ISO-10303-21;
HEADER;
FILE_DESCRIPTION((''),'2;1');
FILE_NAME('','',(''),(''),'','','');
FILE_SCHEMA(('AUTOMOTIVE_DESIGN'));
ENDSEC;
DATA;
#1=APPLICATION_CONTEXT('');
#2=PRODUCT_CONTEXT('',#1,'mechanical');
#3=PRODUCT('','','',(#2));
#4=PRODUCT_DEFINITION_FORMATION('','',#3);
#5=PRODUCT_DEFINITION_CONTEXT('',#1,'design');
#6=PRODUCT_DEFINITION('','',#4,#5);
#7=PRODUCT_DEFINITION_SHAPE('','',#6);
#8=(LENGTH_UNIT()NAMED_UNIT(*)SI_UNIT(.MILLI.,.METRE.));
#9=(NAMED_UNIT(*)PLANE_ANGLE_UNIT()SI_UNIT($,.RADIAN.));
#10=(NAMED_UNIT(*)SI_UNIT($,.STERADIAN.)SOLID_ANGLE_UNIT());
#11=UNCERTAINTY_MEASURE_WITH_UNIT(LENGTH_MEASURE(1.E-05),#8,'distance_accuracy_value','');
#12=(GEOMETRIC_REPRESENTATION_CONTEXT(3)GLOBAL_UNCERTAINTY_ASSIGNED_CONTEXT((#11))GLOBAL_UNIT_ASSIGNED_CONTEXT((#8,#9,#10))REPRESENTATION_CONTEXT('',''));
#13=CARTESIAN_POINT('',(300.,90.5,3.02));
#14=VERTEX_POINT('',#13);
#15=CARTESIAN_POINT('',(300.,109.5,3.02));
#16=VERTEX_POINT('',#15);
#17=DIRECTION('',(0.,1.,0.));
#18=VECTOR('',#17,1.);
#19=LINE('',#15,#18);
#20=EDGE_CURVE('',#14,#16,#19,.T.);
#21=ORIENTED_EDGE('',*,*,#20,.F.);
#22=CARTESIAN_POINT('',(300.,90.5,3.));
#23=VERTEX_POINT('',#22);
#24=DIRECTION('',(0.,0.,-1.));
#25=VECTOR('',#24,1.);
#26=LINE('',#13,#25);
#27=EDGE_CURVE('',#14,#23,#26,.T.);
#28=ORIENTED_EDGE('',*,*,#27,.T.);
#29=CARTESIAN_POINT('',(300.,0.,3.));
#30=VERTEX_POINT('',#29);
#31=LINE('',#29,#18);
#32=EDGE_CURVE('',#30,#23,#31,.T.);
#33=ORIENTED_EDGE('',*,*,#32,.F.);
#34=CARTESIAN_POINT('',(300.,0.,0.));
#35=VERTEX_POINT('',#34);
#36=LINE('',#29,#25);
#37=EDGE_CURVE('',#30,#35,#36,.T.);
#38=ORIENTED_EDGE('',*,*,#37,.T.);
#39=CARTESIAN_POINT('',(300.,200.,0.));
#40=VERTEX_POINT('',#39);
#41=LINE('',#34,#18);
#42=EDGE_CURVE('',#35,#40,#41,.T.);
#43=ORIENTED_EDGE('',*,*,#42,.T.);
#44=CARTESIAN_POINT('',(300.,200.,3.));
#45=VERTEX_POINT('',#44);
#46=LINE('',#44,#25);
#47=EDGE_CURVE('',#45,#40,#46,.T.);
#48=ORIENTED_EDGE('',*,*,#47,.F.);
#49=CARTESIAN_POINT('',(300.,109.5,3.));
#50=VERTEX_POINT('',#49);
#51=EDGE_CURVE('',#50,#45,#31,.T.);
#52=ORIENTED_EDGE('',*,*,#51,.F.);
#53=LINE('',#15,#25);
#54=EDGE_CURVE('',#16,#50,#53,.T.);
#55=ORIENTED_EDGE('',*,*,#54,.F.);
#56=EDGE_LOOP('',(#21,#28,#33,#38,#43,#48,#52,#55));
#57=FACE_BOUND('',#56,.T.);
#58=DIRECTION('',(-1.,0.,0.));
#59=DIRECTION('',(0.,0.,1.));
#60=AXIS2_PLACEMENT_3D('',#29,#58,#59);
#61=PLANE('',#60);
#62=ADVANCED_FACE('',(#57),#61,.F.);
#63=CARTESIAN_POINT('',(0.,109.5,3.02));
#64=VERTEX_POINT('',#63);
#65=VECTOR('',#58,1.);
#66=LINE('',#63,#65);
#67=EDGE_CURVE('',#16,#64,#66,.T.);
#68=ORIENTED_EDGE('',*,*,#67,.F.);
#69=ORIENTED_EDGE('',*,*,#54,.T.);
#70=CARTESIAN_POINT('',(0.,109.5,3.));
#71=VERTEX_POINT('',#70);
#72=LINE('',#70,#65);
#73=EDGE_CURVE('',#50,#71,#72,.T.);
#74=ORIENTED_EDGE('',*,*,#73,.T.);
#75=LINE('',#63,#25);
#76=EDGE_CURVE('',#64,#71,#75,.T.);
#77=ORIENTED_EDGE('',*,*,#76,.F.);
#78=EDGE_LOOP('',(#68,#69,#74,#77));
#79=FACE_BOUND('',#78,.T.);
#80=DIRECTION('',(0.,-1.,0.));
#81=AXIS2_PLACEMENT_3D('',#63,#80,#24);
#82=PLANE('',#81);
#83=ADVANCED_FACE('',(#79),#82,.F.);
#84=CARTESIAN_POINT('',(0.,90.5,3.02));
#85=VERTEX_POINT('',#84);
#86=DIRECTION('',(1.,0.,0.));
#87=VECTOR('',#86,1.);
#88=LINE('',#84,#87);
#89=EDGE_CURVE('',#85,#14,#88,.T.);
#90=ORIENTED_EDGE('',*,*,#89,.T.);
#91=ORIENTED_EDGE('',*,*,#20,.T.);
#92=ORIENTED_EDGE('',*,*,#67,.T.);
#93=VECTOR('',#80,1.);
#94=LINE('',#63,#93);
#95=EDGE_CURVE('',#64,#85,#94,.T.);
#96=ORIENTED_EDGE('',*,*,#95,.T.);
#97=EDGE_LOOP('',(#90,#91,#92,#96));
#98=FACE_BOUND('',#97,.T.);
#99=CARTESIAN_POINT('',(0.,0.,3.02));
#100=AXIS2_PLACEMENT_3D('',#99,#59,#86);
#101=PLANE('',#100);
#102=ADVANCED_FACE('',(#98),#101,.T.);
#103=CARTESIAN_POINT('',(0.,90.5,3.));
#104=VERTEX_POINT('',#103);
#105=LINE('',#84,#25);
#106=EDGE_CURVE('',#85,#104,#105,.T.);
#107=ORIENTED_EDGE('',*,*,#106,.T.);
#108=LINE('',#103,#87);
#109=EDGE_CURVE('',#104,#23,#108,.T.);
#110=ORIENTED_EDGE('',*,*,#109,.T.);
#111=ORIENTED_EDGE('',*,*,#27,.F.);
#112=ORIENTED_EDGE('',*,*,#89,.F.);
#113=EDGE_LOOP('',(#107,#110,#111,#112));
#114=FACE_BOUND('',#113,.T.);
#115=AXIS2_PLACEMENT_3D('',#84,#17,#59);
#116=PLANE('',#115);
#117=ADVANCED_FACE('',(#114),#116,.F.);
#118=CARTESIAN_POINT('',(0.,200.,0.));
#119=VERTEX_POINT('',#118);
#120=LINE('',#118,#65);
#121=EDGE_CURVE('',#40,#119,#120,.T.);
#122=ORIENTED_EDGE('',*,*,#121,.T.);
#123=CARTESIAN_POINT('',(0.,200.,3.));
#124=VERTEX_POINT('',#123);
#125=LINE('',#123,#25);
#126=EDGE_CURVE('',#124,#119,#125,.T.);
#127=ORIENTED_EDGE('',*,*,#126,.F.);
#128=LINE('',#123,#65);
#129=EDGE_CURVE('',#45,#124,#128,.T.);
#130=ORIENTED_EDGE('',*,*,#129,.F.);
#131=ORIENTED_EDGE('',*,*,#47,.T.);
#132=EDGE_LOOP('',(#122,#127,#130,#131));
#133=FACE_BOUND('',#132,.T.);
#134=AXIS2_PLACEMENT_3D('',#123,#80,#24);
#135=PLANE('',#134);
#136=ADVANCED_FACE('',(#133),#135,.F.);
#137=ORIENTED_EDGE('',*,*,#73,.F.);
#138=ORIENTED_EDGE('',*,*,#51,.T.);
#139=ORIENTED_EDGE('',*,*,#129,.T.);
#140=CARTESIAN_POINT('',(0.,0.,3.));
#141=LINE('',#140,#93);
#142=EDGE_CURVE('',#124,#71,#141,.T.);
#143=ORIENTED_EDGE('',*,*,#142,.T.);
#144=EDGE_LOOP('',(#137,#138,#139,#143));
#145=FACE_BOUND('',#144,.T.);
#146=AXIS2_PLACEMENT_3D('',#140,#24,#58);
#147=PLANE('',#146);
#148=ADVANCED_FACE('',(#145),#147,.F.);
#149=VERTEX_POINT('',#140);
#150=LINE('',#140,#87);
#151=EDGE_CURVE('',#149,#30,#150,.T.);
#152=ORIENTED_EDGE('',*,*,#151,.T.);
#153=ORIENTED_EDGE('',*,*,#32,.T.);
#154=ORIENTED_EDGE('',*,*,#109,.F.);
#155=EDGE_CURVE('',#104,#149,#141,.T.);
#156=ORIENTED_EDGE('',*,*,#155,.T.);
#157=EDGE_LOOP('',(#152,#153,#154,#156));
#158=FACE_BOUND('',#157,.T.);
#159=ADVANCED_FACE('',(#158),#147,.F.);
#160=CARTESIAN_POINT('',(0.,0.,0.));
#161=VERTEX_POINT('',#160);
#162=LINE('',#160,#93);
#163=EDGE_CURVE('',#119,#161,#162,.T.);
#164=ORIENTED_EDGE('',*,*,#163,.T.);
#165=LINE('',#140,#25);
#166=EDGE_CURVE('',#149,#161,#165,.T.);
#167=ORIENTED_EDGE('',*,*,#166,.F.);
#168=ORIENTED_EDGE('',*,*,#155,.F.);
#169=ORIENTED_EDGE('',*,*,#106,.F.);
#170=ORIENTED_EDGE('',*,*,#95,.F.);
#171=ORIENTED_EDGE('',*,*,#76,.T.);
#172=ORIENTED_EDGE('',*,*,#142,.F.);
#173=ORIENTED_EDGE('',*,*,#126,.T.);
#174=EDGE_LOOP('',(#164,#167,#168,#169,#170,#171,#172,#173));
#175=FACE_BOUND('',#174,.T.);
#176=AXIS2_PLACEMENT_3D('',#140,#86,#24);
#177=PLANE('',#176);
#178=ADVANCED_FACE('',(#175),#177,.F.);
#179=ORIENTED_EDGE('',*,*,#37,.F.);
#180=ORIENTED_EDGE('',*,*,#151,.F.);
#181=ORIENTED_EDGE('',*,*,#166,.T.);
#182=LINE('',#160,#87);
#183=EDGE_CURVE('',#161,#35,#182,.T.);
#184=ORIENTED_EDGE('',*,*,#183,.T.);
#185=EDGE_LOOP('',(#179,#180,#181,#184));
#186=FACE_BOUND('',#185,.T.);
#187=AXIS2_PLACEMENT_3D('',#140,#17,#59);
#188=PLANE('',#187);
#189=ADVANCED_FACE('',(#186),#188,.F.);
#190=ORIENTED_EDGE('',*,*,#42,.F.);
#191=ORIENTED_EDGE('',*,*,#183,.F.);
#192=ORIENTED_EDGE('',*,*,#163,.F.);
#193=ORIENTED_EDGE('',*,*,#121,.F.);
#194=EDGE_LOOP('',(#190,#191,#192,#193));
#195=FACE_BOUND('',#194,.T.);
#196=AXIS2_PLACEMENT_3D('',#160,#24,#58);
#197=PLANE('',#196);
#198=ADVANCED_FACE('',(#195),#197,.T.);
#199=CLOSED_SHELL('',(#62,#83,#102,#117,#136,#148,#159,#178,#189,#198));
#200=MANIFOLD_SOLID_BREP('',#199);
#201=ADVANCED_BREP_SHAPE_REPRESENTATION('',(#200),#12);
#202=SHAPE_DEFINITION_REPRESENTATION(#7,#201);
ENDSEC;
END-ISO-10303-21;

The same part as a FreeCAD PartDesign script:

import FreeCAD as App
import Part
import Sketcher
from FreeCAD import Vector

doc = App.newDocument("Part")
body = doc.addObject("PartDesign::Body", "Body")

# Sketch on XY plane
sketch1 = doc.addObject("Sketcher::SketchObject", "Sketch")
body.addObject(sketch1)
sketch1.AttachmentSupport = (doc.XY_Plane, [""])
sketch1.MapMode = "FlatFace"
sketch1.addGeometry(Part.LineSegment(Vector(0, 200, 0), Vector(0, 0, 0)), False)
sketch1.addGeometry(Part.LineSegment(Vector(0, 0, 0), Vector(300, 0, 0)), False)
sketch1.addGeometry(Part.LineSegment(Vector(300, 0, 0), Vector(300, 200, 0)), False)
sketch1.addGeometry(Part.LineSegment(Vector(300, 200, 0), Vector(0, 200, 0)), False)
sketch1.addConstraint(Sketcher.Constraint("Coincident", 0, 2, 1, 1))
sketch1.addConstraint(Sketcher.Constraint("Coincident", 1, 2, 2, 1))
sketch1.addConstraint(Sketcher.Constraint("Coincident", 2, 2, 3, 1))
sketch1.addConstraint(Sketcher.Constraint("Coincident", 3, 2, 0, 1))
sketch1.addConstraint(Sketcher.Constraint("Vertical", 0))
sketch1.addConstraint(Sketcher.Constraint("Horizontal", 1))
sketch1.addConstraint(Sketcher.Constraint("Vertical", 2))
sketch1.addConstraint(Sketcher.Constraint("Horizontal", 3))
sketch1.addConstraint(Sketcher.Constraint("Coincident", 0, 2, -1, 1))
sketch1.addConstraint(Sketcher.Constraint("DistanceX", 1, 1, 1, 2, 300.0))
sketch1.addConstraint(Sketcher.Constraint("DistanceY", 0, 2, 0, 1, 200.0))
pad1 = doc.addObject("PartDesign::Pad", "Pad")
body.addObject(pad1)
pad1.Profile = sketch1
pad1.Length = 3

# Sketch on XY plane
sketch2 = doc.addObject("Sketcher::SketchObject", "Sketch001")
body.addObject(sketch2)
sketch2.AttachmentSupport = (doc.XY_Plane, [""])
sketch2.MapMode = "FlatFace"
sketch2.AttachmentOffset = App.Placement(Vector(0, 0, 3), App.Rotation())
sketch2.addGeometry(Part.LineSegment(Vector(0, 110, 0), Vector(0, 90, 0)), False)
sketch2.addGeometry(Part.LineSegment(Vector(0, 90, 0), Vector(300, 90, 0)), False)
sketch2.addGeometry(Part.LineSegment(Vector(300, 90, 0), Vector(300, 110, 0)), False)
sketch2.addGeometry(Part.LineSegment(Vector(300, 110, 0), Vector(0, 110, 0)), False)
sketch2.addConstraint(Sketcher.Constraint("Coincident", 0, 2, 1, 1))
sketch2.addConstraint(Sketcher.Constraint("Coincident", 1, 2, 2, 1))
sketch2.addConstraint(Sketcher.Constraint("Coincident", 2, 2, 3, 1))
sketch2.addConstraint(Sketcher.Constraint("Coincident", 3, 2, 0, 1))
sketch2.addConstraint(Sketcher.Constraint("Vertical", 0))
sketch2.addConstraint(Sketcher.Constraint("Horizontal", 1))
sketch2.addConstraint(Sketcher.Constraint("Vertical", 2))
sketch2.addConstraint(Sketcher.Constraint("Horizontal", 3))
sketch2.addConstraint(Sketcher.Constraint("PointOnObject", 0, 2, -2))
sketch2.addConstraint(Sketcher.Constraint("DistanceX", 1, 1, 1, 2, 300.0))
sketch2.addConstraint(Sketcher.Constraint("DistanceY", 0, 2, 0, 1, 19.0))
sketch2.addConstraint(Sketcher.Constraint("DistanceY", -1, 1, 0, 2, 90.5))
pad2 = doc.addObject("PartDesign::Pad", "Pad001")
body.addObject(pad2)
pad2.Profile = sketch2
pad2.Length = 0.02

doc.recompute()
